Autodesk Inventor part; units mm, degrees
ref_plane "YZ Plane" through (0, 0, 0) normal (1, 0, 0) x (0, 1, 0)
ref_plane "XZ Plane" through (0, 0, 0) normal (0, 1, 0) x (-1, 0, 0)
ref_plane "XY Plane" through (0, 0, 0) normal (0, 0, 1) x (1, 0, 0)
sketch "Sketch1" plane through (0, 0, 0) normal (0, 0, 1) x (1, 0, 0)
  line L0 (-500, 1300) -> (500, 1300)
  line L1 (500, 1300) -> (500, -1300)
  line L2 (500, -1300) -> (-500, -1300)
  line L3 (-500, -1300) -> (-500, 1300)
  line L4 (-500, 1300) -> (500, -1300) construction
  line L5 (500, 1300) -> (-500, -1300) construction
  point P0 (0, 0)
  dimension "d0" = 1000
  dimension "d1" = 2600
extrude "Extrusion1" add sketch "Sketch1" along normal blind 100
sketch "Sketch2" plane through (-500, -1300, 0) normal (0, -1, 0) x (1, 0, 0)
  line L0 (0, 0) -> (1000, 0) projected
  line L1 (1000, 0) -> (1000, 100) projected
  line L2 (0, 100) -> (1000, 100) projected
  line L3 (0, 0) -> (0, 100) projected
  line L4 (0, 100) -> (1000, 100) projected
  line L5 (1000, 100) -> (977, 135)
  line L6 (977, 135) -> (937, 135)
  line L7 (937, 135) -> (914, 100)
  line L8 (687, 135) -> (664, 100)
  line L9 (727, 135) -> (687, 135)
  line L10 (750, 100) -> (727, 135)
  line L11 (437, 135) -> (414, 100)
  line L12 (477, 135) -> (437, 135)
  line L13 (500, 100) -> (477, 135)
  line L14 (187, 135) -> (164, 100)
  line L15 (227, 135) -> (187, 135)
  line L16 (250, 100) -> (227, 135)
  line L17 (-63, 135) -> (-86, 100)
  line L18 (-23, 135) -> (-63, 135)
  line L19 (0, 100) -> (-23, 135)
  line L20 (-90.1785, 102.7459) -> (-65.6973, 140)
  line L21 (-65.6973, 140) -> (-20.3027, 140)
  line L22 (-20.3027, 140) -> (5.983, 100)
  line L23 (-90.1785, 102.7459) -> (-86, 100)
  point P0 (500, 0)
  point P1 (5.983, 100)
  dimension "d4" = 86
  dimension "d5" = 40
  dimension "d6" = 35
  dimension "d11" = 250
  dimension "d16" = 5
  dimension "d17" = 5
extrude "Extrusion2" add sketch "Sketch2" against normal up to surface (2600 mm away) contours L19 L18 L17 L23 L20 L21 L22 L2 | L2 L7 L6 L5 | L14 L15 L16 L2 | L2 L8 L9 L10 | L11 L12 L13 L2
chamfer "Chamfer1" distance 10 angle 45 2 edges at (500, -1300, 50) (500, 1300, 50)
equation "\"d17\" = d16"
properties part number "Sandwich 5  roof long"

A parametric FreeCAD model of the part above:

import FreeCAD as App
import Part
import Sketcher


def edges_at(feature, points):
    """Names of the edges that pass closest to the given points."""
    edges = feature.Shape.Edges
    near = lambda p: min(range(len(edges)), key=lambda i: edges[i].distToShape(Part.Vertex(*p))[0])
    return sorted({f"Edge{near(p) + 1}" for p in points})


def add_polygon(sketch, points):
    """Adds a closed chain of lines whose ends are joined by coincident constraints."""
    first, n = sketch.GeometryCount, len(points)
    for a, b in zip(points, points[1:] + points[:1]):
        sketch.addGeometry(Part.LineSegment(App.Vector(*a, 0), App.Vector(*b, 0)), False)
    for i in range(n):
        sketch.addConstraint(Sketcher.Constraint("Coincident", first + i, 2, first + (i + 1) % n, 1))

doc = App.newDocument("Part")
body = doc.addObject("PartDesign::Body", "Body")

sketch1 = body.newObject("Sketcher::SketchObject", "Sketch")
sketch1.AttachmentSupport = (doc.getObject("XY_Plane"), [""])
sketch1.MapMode = "FlatFace"
add_polygon(sketch1, [(500, 1300), (-500, 1300), (-500, -1300), (500, -1300)])
sketch1.addConstraint(Sketcher.Constraint("Horizontal", 0))
sketch1.addConstraint(Sketcher.Constraint("Vertical", 1))
sketch1.addConstraint(Sketcher.Constraint("Horizontal", 2))
sketch1.addConstraint(Sketcher.Constraint("Vertical", 3))
sketch1.addConstraint(Sketcher.Constraint("Symmetric", 0, 2, 2, 2, -1, 1))
sketch1.addConstraint(Sketcher.Constraint("DistanceX", 0, 2, 0, 1, 1000.0))
sketch1.addConstraint(Sketcher.Constraint("DistanceY", 1, 2, 1, 1, 2600.0))
pad1 = body.newObject("PartDesign::Pad", "Pad")
pad1.Profile = sketch1
pad1.Length = 100

sketch2 = body.newObject("Sketcher::SketchObject", "Sketch001")
sketch2.AttachmentSupport = (doc.getObject("XZ_Plane"), [""])
sketch2.MapMode = "FlatFace"
sketch2.AttachmentOffset = App.Placement(App.Vector(0, 0, 1300), App.Rotation())
add_polygon(sketch2, [(-523, 135), (-500, 100), (-494, 100), (-520.3, 140), (-565.7, 140), (-590.2, 102.7), (-586, 100), (-563, 135)])
add_polygon(sketch2, [(414, 100), (500, 100), (477, 135), (437, 135)])
add_polygon(sketch2, [(-313, 135), (-336, 100), (-250, 100), (-273, 135)])
add_polygon(sketch2, [(164, 100), (250, 100), (227, 135), (187, 135)])
add_polygon(sketch2, [(-63, 135), (-86, 100), (0, 100), (-23, 135)])
sketch2.addConstraint(Sketcher.Constraint("Horizontal", 1))
sketch2.addConstraint(Sketcher.Constraint("Horizontal", 3))
sketch2.addConstraint(Sketcher.Constraint("Horizontal", 7))
sketch2.addConstraint(Sketcher.Constraint("Horizontal", 8))
sketch2.addConstraint(Sketcher.Constraint("Horizontal", 10))
sketch2.addConstraint(Sketcher.Constraint("Horizontal", 13))
sketch2.addConstraint(Sketcher.Constraint("Horizontal", 15))
sketch2.addConstraint(Sketcher.Constraint("Horizontal", 16))
sketch2.addConstraint(Sketcher.Constraint("Horizontal", 18))
sketch2.addConstraint(Sketcher.Constraint("Horizontal", 21))
sketch2.addConstraint(Sketcher.Constraint("Horizontal", 23))
sketch2.addConstraint(Sketcher.Constraint("Symmetric", 0, 2, 8, 2, -2))
sketch2.addConstraint(Sketcher.Constraint("Symmetric", 13, 2, 16, 2, -2))
sketch2.addConstraint(Sketcher.Constraint("PointOnObject", 21, 2, -2))
sketch2.addConstraint(Sketcher.Constraint("Parallel", 0, 2))
sketch2.addConstraint(Sketcher.Constraint("Perpendicular", 4, 5))
sketch2.addConstraint(Sketcher.Constraint("Perpendicular", 5, 6))
sketch2.addConstraint(Sketcher.Constraint("Parallel", 2, 9))
sketch2.addConstraint(Sketcher.Constraint("Parallel", 6, 11))
sketch2.addConstraint(Sketcher.Constraint("Parallel", 11, 12))
sketch2.addConstraint(Sketcher.Constraint("Parallel", 9, 14))
sketch2.addConstraint(Sketcher.Constraint("Parallel", 14, 17))
sketch2.addConstraint(Sketcher.Constraint("Parallel", 12, 19))
sketch2.addConstraint(Sketcher.Constraint("Parallel", 19, 20))
sketch2.addConstraint(Sketcher.Constraint("Parallel", 17, 22))
sketch2.addConstraint(Sketcher.Constraint("Horizontal", 1, 2, 5, 2))
sketch2.addConstraint(Sketcher.Constraint("Horizontal", 7, 2, 9, 2))
sketch2.addConstraint(Sketcher.Constraint("Horizontal", 11, 2, 12, 2))
sketch2.addConstraint(Sketcher.Constraint("Horizontal", 10, 2, 14, 2))
sketch2.addConstraint(Sketcher.Constraint("Horizontal", 15, 2, 17, 2))
sketch2.addConstraint(Sketcher.Constraint("Horizontal", 19, 2, 20, 2))
sketch2.addConstraint(Sketcher.Constraint("Horizontal", 18, 2, 22, 2))
sketch2.addConstraint(Sketcher.Constraint("Equal", 7, 10))
sketch2.addConstraint(Sketcher.Constraint("Equal", 8, 13))
sketch2.addConstraint(Sketcher.Constraint("Equal", 13, 16))
sketch2.addConstraint(Sketcher.Constraint("Equal", 16, 21))
sketch2.addConstraint(Sketcher.Constraint("Equal", 0, 6))
sketch2.addConstraint(Sketcher.Constraint("DistanceX", 7, 1, 7, 2, 40.0))
sketch2.addConstraint(Sketcher.Constraint("DistanceX", 8, 1, 8, 2, 86.0))
sketch2.addConstraint(Sketcher.Constraint("Distance", 5, 5.0))
sketch2.addConstraint(Sketcher.Constraint("DistanceX", 13, 2, -1, 1, 250.0))
sketch2.addConstraint(Sketcher.Constraint("DistanceY", 0, 2, 2, 2, 40.0))
sketch2.addConstraint(Sketcher.Constraint("DistanceY", 6, 2, 3, 2, 5.0))
sketch2.addConstraint(Sketcher.Constraint("DistanceX", 0, 2, 13, 2, 250.0))
sketch2.addConstraint(Sketcher.Constraint("DistanceY", -1, 1, 0, 2, 100.0))
sketch2.addConstraint(Sketcher.Constraint("DistanceX", 1, 1, 1, 2, 5.983))
pad2 = body.newObject("PartDesign::Pad", "Pad001")
pad2.Profile = sketch2
pad2.Length = 2600
pad2.Reversed = True
doc.recompute()

chamfer = body.newObject("PartDesign::Chamfer", "Chamfer")
chamfer.Base = (pad2, edges_at(pad2, [(500, -1300, 50), (500, 1300, 50)]))
chamfer.Size = 10

doc.recompute()
